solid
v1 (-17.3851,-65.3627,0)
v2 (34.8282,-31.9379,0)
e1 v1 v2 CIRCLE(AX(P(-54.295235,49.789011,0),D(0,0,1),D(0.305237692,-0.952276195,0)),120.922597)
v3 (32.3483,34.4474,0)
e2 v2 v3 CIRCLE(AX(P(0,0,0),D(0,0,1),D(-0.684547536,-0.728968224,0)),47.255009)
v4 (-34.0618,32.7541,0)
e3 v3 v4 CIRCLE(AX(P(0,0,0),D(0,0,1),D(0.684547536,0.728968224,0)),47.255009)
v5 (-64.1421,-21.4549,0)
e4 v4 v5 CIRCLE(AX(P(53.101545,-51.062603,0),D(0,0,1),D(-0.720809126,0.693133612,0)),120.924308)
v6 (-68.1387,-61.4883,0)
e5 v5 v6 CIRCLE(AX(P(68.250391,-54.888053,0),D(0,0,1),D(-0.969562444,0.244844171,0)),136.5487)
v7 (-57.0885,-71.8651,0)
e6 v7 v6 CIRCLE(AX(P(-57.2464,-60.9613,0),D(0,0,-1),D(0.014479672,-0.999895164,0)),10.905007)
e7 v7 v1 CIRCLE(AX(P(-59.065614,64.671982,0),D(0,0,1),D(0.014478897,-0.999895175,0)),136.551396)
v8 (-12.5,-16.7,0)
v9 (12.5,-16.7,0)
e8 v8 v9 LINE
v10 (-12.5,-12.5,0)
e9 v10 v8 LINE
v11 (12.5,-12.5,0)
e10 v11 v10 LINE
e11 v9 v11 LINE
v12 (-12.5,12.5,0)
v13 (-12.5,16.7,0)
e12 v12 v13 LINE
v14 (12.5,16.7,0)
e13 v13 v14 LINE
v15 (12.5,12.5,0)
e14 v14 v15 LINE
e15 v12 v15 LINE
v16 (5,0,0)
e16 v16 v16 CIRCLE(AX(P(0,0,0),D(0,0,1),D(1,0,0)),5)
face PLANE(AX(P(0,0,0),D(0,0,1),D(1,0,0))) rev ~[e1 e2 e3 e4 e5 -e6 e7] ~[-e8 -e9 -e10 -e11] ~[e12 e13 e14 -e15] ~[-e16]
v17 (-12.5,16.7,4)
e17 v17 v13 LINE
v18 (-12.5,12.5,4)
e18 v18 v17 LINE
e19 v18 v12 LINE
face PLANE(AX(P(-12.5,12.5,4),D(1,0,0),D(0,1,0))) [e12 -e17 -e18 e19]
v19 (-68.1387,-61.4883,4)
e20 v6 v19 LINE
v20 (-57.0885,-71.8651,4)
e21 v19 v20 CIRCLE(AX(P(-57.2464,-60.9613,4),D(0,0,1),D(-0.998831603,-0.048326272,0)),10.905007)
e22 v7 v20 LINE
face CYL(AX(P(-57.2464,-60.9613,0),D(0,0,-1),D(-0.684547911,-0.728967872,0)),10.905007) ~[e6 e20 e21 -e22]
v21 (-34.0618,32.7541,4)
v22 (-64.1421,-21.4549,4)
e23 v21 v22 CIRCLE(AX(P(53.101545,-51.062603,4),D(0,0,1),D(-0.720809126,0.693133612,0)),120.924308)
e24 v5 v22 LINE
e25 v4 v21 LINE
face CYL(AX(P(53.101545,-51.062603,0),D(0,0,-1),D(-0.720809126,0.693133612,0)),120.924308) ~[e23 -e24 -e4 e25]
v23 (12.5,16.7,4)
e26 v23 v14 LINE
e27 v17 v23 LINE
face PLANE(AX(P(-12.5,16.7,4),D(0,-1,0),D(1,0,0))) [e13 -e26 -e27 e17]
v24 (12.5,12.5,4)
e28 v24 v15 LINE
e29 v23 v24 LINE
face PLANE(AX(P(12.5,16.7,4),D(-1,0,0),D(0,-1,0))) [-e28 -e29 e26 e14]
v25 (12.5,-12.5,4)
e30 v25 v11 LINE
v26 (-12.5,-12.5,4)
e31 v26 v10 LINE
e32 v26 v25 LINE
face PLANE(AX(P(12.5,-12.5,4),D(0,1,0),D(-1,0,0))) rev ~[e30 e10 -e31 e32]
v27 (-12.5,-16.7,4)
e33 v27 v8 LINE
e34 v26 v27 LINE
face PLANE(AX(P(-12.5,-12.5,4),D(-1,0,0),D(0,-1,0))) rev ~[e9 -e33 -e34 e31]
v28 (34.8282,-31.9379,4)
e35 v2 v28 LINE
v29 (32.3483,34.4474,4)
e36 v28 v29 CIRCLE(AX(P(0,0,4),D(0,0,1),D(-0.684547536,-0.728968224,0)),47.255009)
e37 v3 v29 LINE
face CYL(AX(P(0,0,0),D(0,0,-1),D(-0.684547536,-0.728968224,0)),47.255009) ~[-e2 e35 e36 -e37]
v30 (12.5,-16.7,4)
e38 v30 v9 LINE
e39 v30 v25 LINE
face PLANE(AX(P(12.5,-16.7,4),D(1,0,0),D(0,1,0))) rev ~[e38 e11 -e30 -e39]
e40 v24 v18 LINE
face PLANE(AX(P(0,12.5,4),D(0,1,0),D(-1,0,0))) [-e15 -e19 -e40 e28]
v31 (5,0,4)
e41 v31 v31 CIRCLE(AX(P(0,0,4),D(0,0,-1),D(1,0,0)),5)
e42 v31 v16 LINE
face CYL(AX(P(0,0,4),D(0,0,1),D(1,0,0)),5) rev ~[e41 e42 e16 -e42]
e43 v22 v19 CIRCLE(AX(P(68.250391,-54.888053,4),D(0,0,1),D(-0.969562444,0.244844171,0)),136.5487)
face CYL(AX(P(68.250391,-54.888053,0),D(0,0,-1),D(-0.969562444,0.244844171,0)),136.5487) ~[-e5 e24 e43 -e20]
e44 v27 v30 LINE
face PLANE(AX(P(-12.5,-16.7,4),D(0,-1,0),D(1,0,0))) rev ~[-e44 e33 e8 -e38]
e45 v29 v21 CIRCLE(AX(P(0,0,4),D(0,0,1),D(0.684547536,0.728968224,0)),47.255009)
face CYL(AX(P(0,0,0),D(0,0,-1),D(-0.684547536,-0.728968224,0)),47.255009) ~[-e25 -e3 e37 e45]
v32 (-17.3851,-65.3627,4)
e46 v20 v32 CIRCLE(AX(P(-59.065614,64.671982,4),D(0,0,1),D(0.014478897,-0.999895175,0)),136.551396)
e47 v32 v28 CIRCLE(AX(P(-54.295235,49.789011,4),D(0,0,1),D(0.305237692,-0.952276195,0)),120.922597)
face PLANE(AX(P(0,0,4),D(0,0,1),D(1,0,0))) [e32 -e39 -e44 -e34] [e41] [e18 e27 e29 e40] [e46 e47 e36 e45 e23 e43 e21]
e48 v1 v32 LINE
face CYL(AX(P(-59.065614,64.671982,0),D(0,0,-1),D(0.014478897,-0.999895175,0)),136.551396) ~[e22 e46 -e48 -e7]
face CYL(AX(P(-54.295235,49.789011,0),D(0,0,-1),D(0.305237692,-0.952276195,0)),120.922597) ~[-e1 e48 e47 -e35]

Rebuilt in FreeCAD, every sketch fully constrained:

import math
import FreeCAD as App
import Part
import Sketcher
from FreeCAD import Vector


def add_polygon(sketch, points):
    """Adds a closed chain of lines whose ends are joined by coincident constraints."""
    first, n = sketch.GeometryCount, len(points)
    for a, b in zip(points, points[1:] + points[:1]):
        sketch.addGeometry(Part.LineSegment(App.Vector(*a, 0), App.Vector(*b, 0)), False)
    for i in range(n):
        sketch.addConstraint(Sketcher.Constraint("Coincident", first + i, 2, first + (i + 1) % n, 1))

doc = App.newDocument("Part")
body = doc.addObject("PartDesign::Body", "Body")

# Sketch on XY plane
sketch1 = body.newObject("Sketcher::SketchObject", "Sketch")
sketch1.AttachmentSupport = (doc.getObject("XY_Plane"), [""])
sketch1.MapMode = "FlatFace"
sketch1.addGeometry([
    Part.ArcOfCircle(Part.Circle(Vector(0, 0, 0), Vector(0, 0, 1), 47.255009), math.radians(-42.521217), math.radians(136.121232)),  # 0
    Part.ArcOfCircle(Part.Circle(Vector(53.101, -51.0622, 0), Vector(0, 0, 1), 120.923636), math.radians(136.121282), math.radians(165.827453)),  # 1
    Part.ArcOfCircle(Part.Circle(Vector(68.250391, -54.888053, 0), Vector(0, 0, 1), 136.5487), math.radians(165.827375), math.radians(182.77054)),  # 2
    Part.ArcOfCircle(Part.Circle(Vector(-57.2464, -60.9613, 0), Vector(0, 0, 1), 10.905007), math.radians(-177.23003), math.radians(-89.170347)),  # 3
    Part.ArcOfCircle(Part.Circle(Vector(-59.065614, 64.671982, 0), Vector(0, 0, 1), 136.551396), math.radians(-89.170391), math.radians(-72.227588)),  # 4
    Part.ArcOfCircle(Part.Circle(Vector(-54.295235, 49.789011, 0), Vector(0, 0, 1), 120.922597), math.radians(-72.227535), math.radians(-42.521075)),  # 5
], False)
sketch1.addConstraint([
    Sketcher.Constraint("Coincident", 0, 2, 1, 1),
    Sketcher.Constraint("Coincident", 1, 2, 2, 1),
    Sketcher.Constraint("Coincident", 2, 2, 3, 1),
    Sketcher.Constraint("Coincident", 3, 2, 4, 1),
    Sketcher.Constraint("Coincident", 4, 2, 5, 1),
    Sketcher.Constraint("Coincident", 5, 2, 0, 1),
    Sketcher.Constraint("Coincident", 0, 3, -1, 1),
    Sketcher.Constraint("Radius", 0, 47.255),
    Sketcher.Constraint("Radius", 3, 10.905),
    Sketcher.Constraint("Radius", 1, 120.9236),
    Sketcher.Constraint("Radius", 2, 136.5487),
    Sketcher.Constraint("Radius", 4, 136.5514),
    Sketcher.Constraint("Radius", 5, 120.9226),
    Sketcher.Constraint("DistanceY", 2, 3, 4, 3, 119.56),
    Sketcher.Constraint("DistanceX", 0, 2, 5, 2, 68.89),
    Sketcher.Constraint("DistanceX", -1, 1, 1, 3, 53.101),
    Sketcher.Constraint("DistanceY", 2, 3, -1, 1, 54.888),
    Sketcher.Constraint("DistanceY", -1, 1, 5, 3, 49.789),
    Sketcher.Constraint("DistanceY", -1, 1, 0, 2, 32.754),
    Sketcher.Constraint("DistanceX", 1, 2, -1, 1, 64.142),
    Sketcher.Constraint("DistanceX", 4, 2, -1, 1, 17.385),
    Sketcher.Constraint("DistanceY", 2, 2, 3, 3, 0.527),
    Sketcher.Constraint("DistanceX", 3, 3, 3, 2, 0.158),
])
pad1 = body.newObject("PartDesign::Pad", "Pad")
pad1.Profile = sketch1
pad1.Length = 4

# Sketch on XY plane
sketch2 = body.newObject("Sketcher::SketchObject", "Sketch001")
sketch2.AttachmentSupport = (doc.getObject("XY_Plane"), [""])
sketch2.MapMode = "FlatFace"
sketch2.AttachmentOffset = App.Placement(Vector(0, 0, 4), App.Rotation())
sketch2.addGeometry(Part.Circle(Vector(0, 0, 0), Vector(0, 0, 1), 5), False)  # 0
add_polygon(sketch2, [(-12.5, 12.5), (12.5, 12.5), (12.5, 16.7), (-12.5, 16.7)])  # lines 1-4
add_polygon(sketch2, [(12.5, -12.5), (-12.5, -12.5), (-12.5, -16.7), (12.5, -16.7)])  # lines 5-8
sketch2.addConstraint([
    Sketcher.Constraint("Horizontal", 1),
    Sketcher.Constraint("Vertical", 2),
    Sketcher.Constraint("Horizontal", 3),
    Sketcher.Constraint("Vertical", 4),
    Sketcher.Constraint("Horizontal", 5),
    Sketcher.Constraint("Vertical", 6),
    Sketcher.Constraint("Horizontal", 7),
    Sketcher.Constraint("Vertical", 8),
    Sketcher.Constraint("Coincident", 0, 3, -1, 1),
    Sketcher.Constraint("Symmetric", 1, 2, 5, 2, -1, 1),
    Sketcher.Constraint("Symmetric", 3, 2, 7, 2, -1, 1),
    Sketcher.Constraint("Vertical", 4, 2, 5, 2),
    Sketcher.Constraint("Diameter", 0, 10.0),
    Sketcher.Constraint("DistanceX", 1, 1, 1, 2, 25.0),
    Sketcher.Constraint("DistanceY", 2, 1, 2, 2, 4.2),
    Sketcher.Constraint("DistanceY", 5, 2, 4, 2, 25.0),
])
pocket1 = body.newObject("PartDesign::Pocket", "Pocket")
pocket1.Profile = sketch2
pocket1.Length = 4

doc.recompute()
